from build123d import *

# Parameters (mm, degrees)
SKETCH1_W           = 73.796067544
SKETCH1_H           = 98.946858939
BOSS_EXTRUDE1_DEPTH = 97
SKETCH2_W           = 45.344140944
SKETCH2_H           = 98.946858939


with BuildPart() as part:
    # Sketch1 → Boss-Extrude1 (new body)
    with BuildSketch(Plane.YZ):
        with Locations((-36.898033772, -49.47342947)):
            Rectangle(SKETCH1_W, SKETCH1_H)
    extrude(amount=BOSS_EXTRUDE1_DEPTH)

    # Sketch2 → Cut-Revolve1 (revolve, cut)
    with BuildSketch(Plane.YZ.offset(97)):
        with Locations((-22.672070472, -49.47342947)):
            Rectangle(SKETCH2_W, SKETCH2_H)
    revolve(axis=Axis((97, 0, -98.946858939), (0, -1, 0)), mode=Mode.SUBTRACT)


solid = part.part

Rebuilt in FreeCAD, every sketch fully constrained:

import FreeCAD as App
import Part
import Sketcher
Q = App.Units.Quantity


def add_polygon(sketch, points):
    """Adds a closed chain of lines whose ends are joined by coincident constraints."""
    first, n = sketch.GeometryCount, len(points)
    for a, b in zip(points, points[1:] + points[:1]):
        sketch.addGeometry(Part.LineSegment(App.Vector(*a, 0), App.Vector(*b, 0)), False)
    for i in range(n):
        sketch.addConstraint(Sketcher.Constraint("Coincident", first + i, 2, first + (i + 1) % n, 1))

doc = App.newDocument("Part")
body = doc.addObject("PartDesign::Body", "Body")

sketch1 = body.newObject("Sketcher::SketchObject", "Sketch")
sketch1.AttachmentSupport = (doc.getObject("YZ_Plane"), [""])
sketch1.MapMode = "FlatFace"
add_polygon(sketch1, [(-74, 0), (-74, -99), (0, -99), (0, 0)])
sketch1.addConstraint([
    Sketcher.Constraint("Vertical", 0),
    Sketcher.Constraint("Horizontal", 1),
    Sketcher.Constraint("Vertical", 2),
    Sketcher.Constraint("Horizontal", 3),
    Sketcher.Constraint("Coincident", 2, 2, -1, 1),
    Sketcher.Constraint("DistanceY", 0, 2, 0, 1, Q("98.946859 mm")),
    Sketcher.Constraint("DistanceX", 1, 1, 1, 2, Q("73.796068 mm")),
])
pad1 = body.newObject("PartDesign::Pad", "Pad")
pad1.Profile = sketch1
pad1.Length = 97

sketch2 = body.newObject("Sketcher::SketchObject", "Sketch001")
sketch2.AttachmentSupport = (doc.getObject("YZ_Plane"), [""])
sketch2.MapMode = "FlatFace"
sketch2.AttachmentOffset = App.Placement(App.Vector(0, 0, 97), App.Rotation())
add_polygon(sketch2, [(-45, 0), (-45, -99), (0, -99), (0, 0)])
sketch2.addGeometry(Part.LineSegment(App.Vector(0, -99, 0), App.Vector(-45, -99, 0)), True)
sketch2.addConstraint([
    Sketcher.Constraint("Vertical", 0),
    Sketcher.Constraint("Horizontal", 1),
    Sketcher.Constraint("Vertical", 2),
    Sketcher.Constraint("Horizontal", 3),
    Sketcher.Constraint("Horizontal", 4),
    Sketcher.Constraint("Coincident", 2, 2, -1, 1),
    Sketcher.Constraint("Coincident", 4, 1, 1, 2),
    Sketcher.Constraint("Vertical", 3, 2, 4, 2),
    Sketcher.Constraint("DistanceX", 1, 1, 1, 2, Q("45.344141 mm")),
    Sketcher.Constraint("DistanceY", 0, 2, 0, 1, Q("98.946859 mm")),
])
groove = body.newObject("PartDesign::Groove", "Groove")
groove.Profile = sketch2
groove.ReferenceAxis = (sketch2, ["Axis0"])
groove.Angle = 360

doc.recompute()
